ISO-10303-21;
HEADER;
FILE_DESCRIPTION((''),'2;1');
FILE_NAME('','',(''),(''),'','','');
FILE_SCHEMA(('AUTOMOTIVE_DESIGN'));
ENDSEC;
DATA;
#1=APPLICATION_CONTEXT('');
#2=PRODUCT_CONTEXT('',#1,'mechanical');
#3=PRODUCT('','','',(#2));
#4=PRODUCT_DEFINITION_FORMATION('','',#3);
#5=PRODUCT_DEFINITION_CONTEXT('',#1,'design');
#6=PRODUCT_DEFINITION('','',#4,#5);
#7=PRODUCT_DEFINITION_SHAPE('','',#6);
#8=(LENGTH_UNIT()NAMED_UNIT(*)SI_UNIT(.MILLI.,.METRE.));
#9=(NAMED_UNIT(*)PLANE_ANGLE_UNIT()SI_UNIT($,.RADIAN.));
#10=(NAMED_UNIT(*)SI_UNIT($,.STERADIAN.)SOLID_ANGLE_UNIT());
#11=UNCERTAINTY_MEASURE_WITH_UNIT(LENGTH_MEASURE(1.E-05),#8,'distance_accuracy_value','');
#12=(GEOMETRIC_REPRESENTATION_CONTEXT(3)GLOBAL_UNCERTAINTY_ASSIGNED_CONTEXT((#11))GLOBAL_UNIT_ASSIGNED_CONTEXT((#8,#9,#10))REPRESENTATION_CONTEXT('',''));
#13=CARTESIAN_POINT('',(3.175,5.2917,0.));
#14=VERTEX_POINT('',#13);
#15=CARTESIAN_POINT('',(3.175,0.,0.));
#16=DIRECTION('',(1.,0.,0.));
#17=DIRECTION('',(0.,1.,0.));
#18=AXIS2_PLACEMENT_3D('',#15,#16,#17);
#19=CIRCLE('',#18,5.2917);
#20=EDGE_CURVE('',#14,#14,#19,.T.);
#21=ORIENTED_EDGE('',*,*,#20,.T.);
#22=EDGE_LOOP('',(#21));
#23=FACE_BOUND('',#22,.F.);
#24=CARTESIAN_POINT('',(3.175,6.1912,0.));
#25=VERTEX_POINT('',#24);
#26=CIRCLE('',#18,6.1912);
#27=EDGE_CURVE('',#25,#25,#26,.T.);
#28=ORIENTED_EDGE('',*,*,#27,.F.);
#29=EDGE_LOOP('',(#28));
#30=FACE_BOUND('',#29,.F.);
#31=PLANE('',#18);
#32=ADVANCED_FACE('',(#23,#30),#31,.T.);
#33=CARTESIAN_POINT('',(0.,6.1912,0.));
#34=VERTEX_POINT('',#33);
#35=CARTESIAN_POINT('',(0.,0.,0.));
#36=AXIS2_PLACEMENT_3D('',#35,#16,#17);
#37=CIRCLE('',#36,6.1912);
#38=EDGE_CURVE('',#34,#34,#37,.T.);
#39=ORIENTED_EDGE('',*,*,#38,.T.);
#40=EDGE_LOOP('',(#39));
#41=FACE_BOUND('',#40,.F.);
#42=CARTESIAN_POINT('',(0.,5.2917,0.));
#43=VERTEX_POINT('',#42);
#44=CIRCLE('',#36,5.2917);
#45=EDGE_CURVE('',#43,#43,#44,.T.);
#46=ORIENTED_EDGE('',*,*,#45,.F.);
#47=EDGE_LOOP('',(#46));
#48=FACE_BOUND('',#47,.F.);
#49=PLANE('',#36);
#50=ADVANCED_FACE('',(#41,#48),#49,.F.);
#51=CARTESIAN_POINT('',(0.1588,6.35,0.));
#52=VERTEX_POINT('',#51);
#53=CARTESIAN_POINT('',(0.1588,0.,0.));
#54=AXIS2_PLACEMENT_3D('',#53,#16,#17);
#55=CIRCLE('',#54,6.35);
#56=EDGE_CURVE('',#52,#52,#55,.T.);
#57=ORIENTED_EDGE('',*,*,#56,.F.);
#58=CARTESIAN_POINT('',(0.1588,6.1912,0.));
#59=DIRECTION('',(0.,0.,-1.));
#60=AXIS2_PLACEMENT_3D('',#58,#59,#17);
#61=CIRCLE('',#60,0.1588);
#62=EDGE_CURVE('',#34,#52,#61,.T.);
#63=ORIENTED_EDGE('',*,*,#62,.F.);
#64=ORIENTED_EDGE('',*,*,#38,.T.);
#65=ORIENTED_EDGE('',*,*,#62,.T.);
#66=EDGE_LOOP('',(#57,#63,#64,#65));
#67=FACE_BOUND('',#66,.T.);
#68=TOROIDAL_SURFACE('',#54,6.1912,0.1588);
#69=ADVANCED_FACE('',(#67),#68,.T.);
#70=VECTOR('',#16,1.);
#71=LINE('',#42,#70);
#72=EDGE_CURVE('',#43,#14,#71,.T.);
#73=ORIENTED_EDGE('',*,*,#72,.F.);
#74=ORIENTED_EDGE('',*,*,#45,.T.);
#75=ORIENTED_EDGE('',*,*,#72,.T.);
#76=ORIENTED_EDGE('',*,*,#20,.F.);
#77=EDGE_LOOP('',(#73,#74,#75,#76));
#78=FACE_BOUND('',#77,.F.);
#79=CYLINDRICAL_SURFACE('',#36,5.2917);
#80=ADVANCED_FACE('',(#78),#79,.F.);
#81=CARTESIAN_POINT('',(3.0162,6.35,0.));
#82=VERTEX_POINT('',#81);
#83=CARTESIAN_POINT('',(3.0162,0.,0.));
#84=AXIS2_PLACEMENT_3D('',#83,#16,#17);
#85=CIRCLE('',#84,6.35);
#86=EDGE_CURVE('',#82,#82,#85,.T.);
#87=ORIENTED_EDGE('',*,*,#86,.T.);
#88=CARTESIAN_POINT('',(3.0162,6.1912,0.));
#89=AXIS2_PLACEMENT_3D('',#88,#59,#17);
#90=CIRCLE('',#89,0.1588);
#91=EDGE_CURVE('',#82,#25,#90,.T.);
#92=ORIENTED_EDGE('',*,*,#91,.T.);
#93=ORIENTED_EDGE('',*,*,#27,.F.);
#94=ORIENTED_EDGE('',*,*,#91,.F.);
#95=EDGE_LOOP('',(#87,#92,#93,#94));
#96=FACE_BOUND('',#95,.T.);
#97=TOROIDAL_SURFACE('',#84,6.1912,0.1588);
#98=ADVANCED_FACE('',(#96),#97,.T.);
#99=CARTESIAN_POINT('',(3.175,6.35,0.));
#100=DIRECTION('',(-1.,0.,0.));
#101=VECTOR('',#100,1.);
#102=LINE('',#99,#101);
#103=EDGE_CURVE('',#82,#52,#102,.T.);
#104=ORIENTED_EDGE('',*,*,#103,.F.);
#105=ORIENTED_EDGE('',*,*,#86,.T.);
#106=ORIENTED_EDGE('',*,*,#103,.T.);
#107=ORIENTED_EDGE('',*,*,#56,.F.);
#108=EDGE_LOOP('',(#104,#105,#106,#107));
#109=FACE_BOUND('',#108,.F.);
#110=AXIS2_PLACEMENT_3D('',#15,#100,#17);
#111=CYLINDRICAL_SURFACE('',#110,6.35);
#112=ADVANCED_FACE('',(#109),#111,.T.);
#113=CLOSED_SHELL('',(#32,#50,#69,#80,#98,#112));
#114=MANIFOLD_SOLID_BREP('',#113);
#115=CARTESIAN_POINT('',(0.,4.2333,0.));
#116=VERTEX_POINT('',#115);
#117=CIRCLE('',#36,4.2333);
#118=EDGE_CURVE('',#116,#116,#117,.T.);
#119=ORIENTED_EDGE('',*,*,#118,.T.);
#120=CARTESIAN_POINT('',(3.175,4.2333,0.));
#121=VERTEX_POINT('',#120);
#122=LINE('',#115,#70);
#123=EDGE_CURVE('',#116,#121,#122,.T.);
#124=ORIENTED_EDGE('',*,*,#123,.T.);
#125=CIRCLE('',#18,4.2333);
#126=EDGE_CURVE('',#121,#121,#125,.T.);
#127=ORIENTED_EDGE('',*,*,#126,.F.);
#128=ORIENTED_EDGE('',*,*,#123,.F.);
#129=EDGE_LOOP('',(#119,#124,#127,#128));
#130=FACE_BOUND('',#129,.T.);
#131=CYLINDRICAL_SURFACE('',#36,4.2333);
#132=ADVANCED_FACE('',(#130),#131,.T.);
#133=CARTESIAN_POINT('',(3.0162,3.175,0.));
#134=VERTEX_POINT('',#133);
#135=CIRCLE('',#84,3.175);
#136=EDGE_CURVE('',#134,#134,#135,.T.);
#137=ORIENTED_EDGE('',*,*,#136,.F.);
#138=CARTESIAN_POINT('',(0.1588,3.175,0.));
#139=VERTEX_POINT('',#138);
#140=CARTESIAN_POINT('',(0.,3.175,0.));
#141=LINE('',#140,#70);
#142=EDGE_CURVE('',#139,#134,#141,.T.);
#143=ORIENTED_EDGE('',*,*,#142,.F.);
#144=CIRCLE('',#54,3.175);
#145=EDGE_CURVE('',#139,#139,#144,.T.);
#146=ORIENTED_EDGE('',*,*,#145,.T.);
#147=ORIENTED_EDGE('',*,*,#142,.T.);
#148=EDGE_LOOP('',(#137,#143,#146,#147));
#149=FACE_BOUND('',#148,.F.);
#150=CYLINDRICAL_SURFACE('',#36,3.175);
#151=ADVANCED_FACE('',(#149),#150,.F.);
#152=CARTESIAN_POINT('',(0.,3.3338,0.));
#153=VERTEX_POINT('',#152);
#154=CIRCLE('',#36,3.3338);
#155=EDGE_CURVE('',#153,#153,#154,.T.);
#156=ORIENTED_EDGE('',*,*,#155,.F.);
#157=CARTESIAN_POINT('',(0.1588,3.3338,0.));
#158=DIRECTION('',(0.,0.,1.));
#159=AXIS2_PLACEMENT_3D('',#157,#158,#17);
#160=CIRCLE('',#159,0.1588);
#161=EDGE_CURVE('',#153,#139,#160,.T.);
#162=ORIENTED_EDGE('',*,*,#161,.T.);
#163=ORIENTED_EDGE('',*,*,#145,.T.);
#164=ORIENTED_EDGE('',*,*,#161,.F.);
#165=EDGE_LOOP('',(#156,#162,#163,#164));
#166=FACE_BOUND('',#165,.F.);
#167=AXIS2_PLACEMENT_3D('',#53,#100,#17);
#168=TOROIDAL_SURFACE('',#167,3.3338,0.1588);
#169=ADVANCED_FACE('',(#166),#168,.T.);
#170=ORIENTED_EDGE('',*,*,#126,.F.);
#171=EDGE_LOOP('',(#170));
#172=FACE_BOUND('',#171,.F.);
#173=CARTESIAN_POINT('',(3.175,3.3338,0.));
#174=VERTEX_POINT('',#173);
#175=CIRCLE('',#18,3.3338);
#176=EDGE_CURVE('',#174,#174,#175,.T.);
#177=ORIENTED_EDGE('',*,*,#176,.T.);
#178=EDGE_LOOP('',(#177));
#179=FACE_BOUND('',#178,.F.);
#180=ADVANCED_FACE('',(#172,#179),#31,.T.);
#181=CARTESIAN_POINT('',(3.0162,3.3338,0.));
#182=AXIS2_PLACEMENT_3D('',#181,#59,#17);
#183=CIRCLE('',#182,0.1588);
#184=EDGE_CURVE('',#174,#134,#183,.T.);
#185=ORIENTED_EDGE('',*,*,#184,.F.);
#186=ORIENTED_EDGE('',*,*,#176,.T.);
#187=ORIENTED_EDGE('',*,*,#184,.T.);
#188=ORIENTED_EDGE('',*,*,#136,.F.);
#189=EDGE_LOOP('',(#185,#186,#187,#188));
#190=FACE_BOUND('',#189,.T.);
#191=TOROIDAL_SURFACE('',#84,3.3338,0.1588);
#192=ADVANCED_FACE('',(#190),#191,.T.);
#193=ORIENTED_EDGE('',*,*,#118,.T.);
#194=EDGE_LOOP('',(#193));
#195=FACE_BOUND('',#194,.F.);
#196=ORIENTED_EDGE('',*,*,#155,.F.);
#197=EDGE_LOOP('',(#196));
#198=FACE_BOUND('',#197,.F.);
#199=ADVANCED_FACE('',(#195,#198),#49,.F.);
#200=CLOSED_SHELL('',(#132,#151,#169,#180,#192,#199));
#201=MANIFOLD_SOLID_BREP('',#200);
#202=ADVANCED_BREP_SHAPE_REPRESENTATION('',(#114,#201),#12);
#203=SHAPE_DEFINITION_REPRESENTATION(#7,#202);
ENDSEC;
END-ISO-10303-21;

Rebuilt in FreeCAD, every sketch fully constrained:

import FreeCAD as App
import Part
import Sketcher

V = App.Vector
Q = App.Units.Quantity


def edges_at(feature, points):
    """Names of the edges that pass closest to the given points."""
    edges = feature.Shape.Edges
    near = lambda p: min(range(len(edges)), key=lambda i: edges[i].distToShape(Part.Vertex(*p))[0])
    return sorted({f"Edge{near(p) + 1}" for p in points})


def add_polygon(sketch, points):
    """Adds a closed chain of lines whose ends are joined by coincident constraints."""
    first, n = sketch.GeometryCount, len(points)
    for a, b in zip(points, points[1:] + points[:1]):
        sketch.addGeometry(Part.LineSegment(App.Vector(*a, 0), App.Vector(*b, 0)), False)
    for i in range(n):
        sketch.addConstraint(Sketcher.Constraint("Coincident", first + i, 2, first + (i + 1) % n, 1))

doc = App.newDocument("Part")
body = doc.addObject("PartDesign::Body", "Body")
body.AllowCompound = True

sketch1 = doc.addObject("Sketcher::SketchObject", "Sketch")
body.addObject(sketch1)
sketch1.AttachmentSupport = (doc.XY_Plane, [""])
sketch1.MapMode = "FlatFace"
add_polygon(sketch1, [(0, 4.2), (0, 3.2), (3.2, 3.2), (3.2, 4.2)])
add_polygon(sketch1, [(0, 6.3), (0, 5.3), (3.2, 5.3), (3.2, 6.3)])
sketch1.addConstraint([
    Sketcher.Constraint("Vertical", 0),
    Sketcher.Constraint("Horizontal", 1),
    Sketcher.Constraint("Vertical", 2),
    Sketcher.Constraint("Horizontal", 3),
    Sketcher.Constraint("Vertical", 4),
    Sketcher.Constraint("Horizontal", 5),
    Sketcher.Constraint("Vertical", 6),
    Sketcher.Constraint("Horizontal", 7),
    Sketcher.Constraint("PointOnObject", 0, 2, -2),
    Sketcher.Constraint("PointOnObject", 4, 2, -2),
    Sketcher.Constraint("Vertical", 2, 2, 5, 2),
    Sketcher.Constraint("Equal", 2, 4),
    Sketcher.Constraint("DistanceX", 1, 1, 1, 2, Q("0.125 in")),
    Sketcher.Constraint("DistanceY", -1, 1, 6, 2, Q("0.25 in")),
    Sketcher.Constraint("DistanceY", -1, 1, 0, 2, Q("0.125 in")),
    Sketcher.Constraint("DistanceY", 0, 2, 0, 1, Q("1.0583 mm")),
])
revolution = doc.addObject("PartDesign::Revolution", "Revolution")
body.addObject(revolution)
revolution.Profile = sketch1
revolution.ReferenceAxis = (sketch1, ["H_Axis"])
revolution.Angle = 360
doc.recompute()

fillet = doc.addObject("PartDesign::Fillet", "Fillet")
body.addObject(fillet)
fillet.Base = (revolution, edges_at(revolution, [
    (0, -6.35, 0),
    (3.175, -6.35, 0),
    (0, -3.175, 0),
    (3.175, -3.175, 0),
]))
fillet.Radius = 0.1588

doc.recompute()
